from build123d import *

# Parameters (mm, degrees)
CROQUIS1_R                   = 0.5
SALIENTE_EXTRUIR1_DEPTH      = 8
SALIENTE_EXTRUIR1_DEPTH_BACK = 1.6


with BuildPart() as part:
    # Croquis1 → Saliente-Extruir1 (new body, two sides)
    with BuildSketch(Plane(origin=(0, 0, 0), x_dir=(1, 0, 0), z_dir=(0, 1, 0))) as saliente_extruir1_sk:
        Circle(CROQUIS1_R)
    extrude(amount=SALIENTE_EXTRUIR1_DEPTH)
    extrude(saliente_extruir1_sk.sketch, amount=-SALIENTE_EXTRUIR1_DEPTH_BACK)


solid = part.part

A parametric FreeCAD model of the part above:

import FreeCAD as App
import Part
import Sketcher

V = App.Vector

doc = App.newDocument("Part")
params = doc.addObject("Spreadsheet::Sheet", "Params")
for row, (alias, value) in enumerate([
    ("sketch1_diameter", "1 mm"),
    ("pad1_length", "8 mm"),
    ("pad1_length2", "1.6 mm"),
], start=1):
    params.set(f"A{row}", alias)
    params.set(f"B{row}", "=" + value)
    params.setAlias(f"B{row}", alias)

body = doc.addObject("PartDesign::Body", "Body")

# Sketch on XZ plane
sketch1 = doc.addObject("Sketcher::SketchObject", "Sketch")
body.addObject(sketch1)
sketch1.AttachmentSupport = (doc.XZ_Plane, [""])
sketch1.MapMode = "FlatFace"
sketch1.addGeometry(Part.Circle(V(0, 0, 0), V(0, 0, 1), 0.5), False)
sketch1.addConstraint(Sketcher.Constraint("Coincident", 0, 3, -1, 1))
sketch1.addConstraint(Sketcher.Constraint("Diameter", 0, 1.0))
sketch1.setExpression("Constraints[1]", "Params.sketch1_diameter")
pad1 = doc.addObject("PartDesign::Pad", "Pad")
body.addObject(pad1)
pad1.Profile = sketch1
pad1.Type = "TwoLengths"
pad1.setExpression("Length", "Params.pad1_length")
pad1.setExpression("Length2", "Params.pad1_length2")
pad1.Reversed = True

doc.recompute()
